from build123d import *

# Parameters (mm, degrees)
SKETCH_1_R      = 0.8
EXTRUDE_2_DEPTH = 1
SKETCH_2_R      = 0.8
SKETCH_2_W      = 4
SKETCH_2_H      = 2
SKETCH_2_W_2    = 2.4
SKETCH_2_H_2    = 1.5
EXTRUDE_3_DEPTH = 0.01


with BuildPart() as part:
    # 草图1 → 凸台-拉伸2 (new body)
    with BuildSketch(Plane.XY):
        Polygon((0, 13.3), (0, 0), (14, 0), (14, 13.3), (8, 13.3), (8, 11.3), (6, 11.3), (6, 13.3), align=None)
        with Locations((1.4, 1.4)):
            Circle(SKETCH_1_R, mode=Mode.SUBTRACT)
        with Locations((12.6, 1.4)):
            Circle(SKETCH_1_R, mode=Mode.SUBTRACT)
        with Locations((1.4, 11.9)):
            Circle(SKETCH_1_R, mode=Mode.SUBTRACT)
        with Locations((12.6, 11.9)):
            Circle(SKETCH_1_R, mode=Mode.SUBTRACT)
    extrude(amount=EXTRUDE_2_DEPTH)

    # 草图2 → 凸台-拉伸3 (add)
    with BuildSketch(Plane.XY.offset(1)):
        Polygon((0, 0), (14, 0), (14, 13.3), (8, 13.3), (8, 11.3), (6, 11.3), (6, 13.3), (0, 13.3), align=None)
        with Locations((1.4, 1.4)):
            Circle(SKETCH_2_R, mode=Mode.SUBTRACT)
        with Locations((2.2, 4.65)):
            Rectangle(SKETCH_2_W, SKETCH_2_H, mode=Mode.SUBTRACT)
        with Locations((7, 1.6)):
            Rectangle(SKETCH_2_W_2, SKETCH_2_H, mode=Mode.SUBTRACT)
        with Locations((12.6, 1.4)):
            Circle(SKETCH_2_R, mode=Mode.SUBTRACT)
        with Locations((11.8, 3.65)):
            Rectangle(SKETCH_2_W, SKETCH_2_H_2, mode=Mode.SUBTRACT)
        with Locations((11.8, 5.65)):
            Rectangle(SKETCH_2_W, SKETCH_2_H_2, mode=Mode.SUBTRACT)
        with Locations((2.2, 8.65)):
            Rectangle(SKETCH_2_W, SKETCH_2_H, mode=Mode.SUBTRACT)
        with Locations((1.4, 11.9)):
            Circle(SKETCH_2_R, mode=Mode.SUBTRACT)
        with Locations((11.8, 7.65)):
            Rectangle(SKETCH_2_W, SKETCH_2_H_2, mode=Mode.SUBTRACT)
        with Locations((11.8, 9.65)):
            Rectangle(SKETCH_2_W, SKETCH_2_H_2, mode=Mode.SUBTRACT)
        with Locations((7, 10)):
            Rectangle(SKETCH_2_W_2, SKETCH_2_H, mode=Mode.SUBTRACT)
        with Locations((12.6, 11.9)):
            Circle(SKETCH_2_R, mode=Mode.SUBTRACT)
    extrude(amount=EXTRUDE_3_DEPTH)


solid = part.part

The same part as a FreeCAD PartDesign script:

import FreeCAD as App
import Part
import Sketcher

V = App.Vector

doc = App.newDocument("Part")
body = doc.addObject("PartDesign::Body", "Body")

# Sketch on XY plane
sketch1 = body.newObject("Sketcher::SketchObject", "Sketch")
sketch1.AttachmentSupport = (doc.getObject("XY_Plane"), [""])
sketch1.MapMode = "FlatFace"
sketch1.addGeometry([
    Part.LineSegment(V(0, 13.3, 0), V(0, 0, 0)),  # 0
    Part.LineSegment(V(0, 0, 0), V(14, 0, 0)),  # 1
    Part.LineSegment(V(14, 0, 0), V(14, 13.3, 0)),  # 2
    Part.LineSegment(V(14, 13.3, 0), V(8, 13.3, 0)),  # 3
    Part.LineSegment(V(8, 13.3, 0), V(8, 11.3, 0)),  # 4
    Part.LineSegment(V(8, 11.3, 0), V(6, 11.3, 0)),  # 5
    Part.LineSegment(V(6, 11.3, 0), V(6, 13.3, 0)),  # 6
    Part.LineSegment(V(6, 13.3, 0), V(0, 13.3, 0)),  # 7
    Part.Circle(V(1.4, 1.4, 0), V(0, 0, 1), 0.8),  # 8
    Part.Circle(V(12.6, 1.4, 0), V(0, 0, 1), 0.8),  # 9
    Part.Circle(V(1.4, 11.9, 0), V(0, 0, 1), 0.8),  # 10
    Part.Circle(V(12.6, 11.9, 0), V(0, 0, 1), 0.8),  # 11
], False)
sketch1.addConstraint([
    Sketcher.Constraint("Coincident", 0, 2, 1, 1),
    Sketcher.Constraint("Coincident", 1, 2, 2, 1),
    Sketcher.Constraint("Coincident", 2, 2, 3, 1),
    Sketcher.Constraint("Coincident", 3, 2, 4, 1),
    Sketcher.Constraint("Coincident", 4, 2, 5, 1),
    Sketcher.Constraint("Coincident", 5, 2, 6, 1),
    Sketcher.Constraint("Coincident", 6, 2, 7, 1),
    Sketcher.Constraint("Coincident", 7, 2, 0, 1),
    Sketcher.Constraint("Vertical", 0),
    Sketcher.Constraint("Horizontal", 1),
    Sketcher.Constraint("Vertical", 2),
    Sketcher.Constraint("Horizontal", 3),
    Sketcher.Constraint("Vertical", 4),
    Sketcher.Constraint("Horizontal", 5),
    Sketcher.Constraint("Vertical", 6),
    Sketcher.Constraint("Horizontal", 7),
    Sketcher.Constraint("Coincident", 0, 2, -1, 1),
    Sketcher.Constraint("Equal", 8, 9),
    Sketcher.Constraint("Equal", 9, 10),
    Sketcher.Constraint("Equal", 10, 11),
    Sketcher.Constraint("Horizontal", 8, 3, 9, 3),
    Sketcher.Constraint("Horizontal", 10, 3, 11, 3),
    Sketcher.Constraint("Horizontal", 3, 2, 6, 2),
    Sketcher.Constraint("Vertical", 8, 3, 10, 3),
    Sketcher.Constraint("Vertical", 9, 3, 11, 3),
    Sketcher.Constraint("Equal", 3, 7),
    Sketcher.Constraint("Equal", 5, 4),
    Sketcher.Constraint("Diameter", 8, 1.6),
    Sketcher.Constraint("DistanceX", 1, 1, 1, 2, 14.0),
    Sketcher.Constraint("DistanceX", 3, 2, 3, 1, 6.0),
    Sketcher.Constraint("DistanceY", 0, 2, 0, 1, 13.3),
    Sketcher.Constraint("DistanceX", -1, 1, 8, 3, 1.4),
    Sketcher.Constraint("DistanceY", -1, 1, 8, 3, 1.4),
    Sketcher.Constraint("DistanceX", -1, 1, 9, 3, 12.6),
    Sketcher.Constraint("DistanceY", -1, 1, 10, 3, 11.9),
])
pad1 = body.newObject("PartDesign::Pad", "Pad")
pad1.Profile = sketch1
pad1.Length = 1

# Sketch on XY plane
sketch2 = body.newObject("Sketcher::SketchObject", "Sketch001")
sketch2.AttachmentSupport = (doc.getObject("XY_Plane"), [""])
sketch2.MapMode = "FlatFace"
sketch2.AttachmentOffset = App.Placement(V(0, 0, 1), App.Rotation())
sketch2.addGeometry([
    Part.LineSegment(V(0, 0, 0), V(14, 0, 0)),  # 0
    Part.LineSegment(V(14, 0, 0), V(14, 13.3, 0)),  # 1
    Part.LineSegment(V(14, 13.3, 0), V(8, 13.3, 0)),  # 2
    Part.LineSegment(V(8, 13.3, 0), V(8, 11.3, 0)),  # 3
    Part.LineSegment(V(8, 11.3, 0), V(6, 11.3, 0)),  # 4
    Part.LineSegment(V(6, 11.3, 0), V(6, 13.3, 0)),  # 5
    Part.LineSegment(V(6, 13.3, 0), V(0, 13.3, 0)),  # 6
    Part.LineSegment(V(0, 13.3, 0), V(0, 0, 0)),  # 7
    Part.Circle(V(1.4, 1.4, 0), V(0, 0, 1), 0.8),  # 8
    Part.LineSegment(V(8.2, 0.6, 0), V(5.8, 0.6, 0)),  # 9
    Part.LineSegment(V(5.8, 0.6, 0), V(5.8, 2.6, 0)),  # 10
    Part.LineSegment(V(5.8, 2.6, 0), V(8.2, 2.6, 0)),  # 11
    Part.LineSegment(V(8.2, 2.6, 0), V(8.2, 0.6, 0)),  # 12
    Part.LineSegment(V(4.2, 3.6, 0), V(0.2, 3.6, 0)),  # 13
    Part.LineSegment(V(0.2, 3.6, 0), V(0.2, 5.7, 0)),  # 14
    Part.LineSegment(V(0.2, 5.7, 0), V(4.2, 5.7, 0)),  # 15
    Part.LineSegment(V(4.2, 5.7, 0), V(4.2, 3.6, 0)),  # 16
    Part.Circle(V(12.6, 1.4, 0), V(0, 0, 1), 0.8),  # 17
    Part.LineSegment(V(13.8, 2.9, 0), V(9.8, 2.9, 0)),  # 18
    Part.LineSegment(V(9.8, 2.9, 0), V(9.8, 4.4, 0)),  # 19
    Part.LineSegment(V(9.8, 4.4, 0), V(13.8, 4.4, 0)),  # 20
    Part.LineSegment(V(13.8, 4.4, 0), V(13.8, 2.9, 0)),  # 21
    Part.LineSegment(V(13.8, 4.9, 0), V(9.8, 4.9, 0)),  # 22
    Part.LineSegment(V(9.8, 4.9, 0), V(9.8, 6.4, 0)),  # 23
    Part.LineSegment(V(9.8, 6.4, 0), V(13.8, 6.4, 0)),  # 24
    Part.LineSegment(V(13.8, 6.4, 0), V(13.8, 4.9, 0)),  # 25
    Part.LineSegment(V(4.2, 7.7, 0), V(0.2, 7.7, 0)),  # 26
    Part.LineSegment(V(0.2, 7.7, 0), V(0.2, 9.7, 0)),  # 27
    Part.LineSegment(V(0.2, 9.7, 0), V(4.2, 9.7, 0)),  # 28
    Part.LineSegment(V(4.2, 9.7, 0), V(4.2, 7.7, 0)),  # 29
    Part.Circle(V(1.4, 11.9, 0), V(0, 0, 1), 0.8),  # 30
    Part.LineSegment(V(8.2, 9, 0), V(5.8, 9, 0)),  # 31
    Part.LineSegment(V(5.8, 9, 0), V(5.8, 11, 0)),  # 32
    Part.LineSegment(V(5.8, 11, 0), V(8.2, 11, 0)),  # 33
    Part.LineSegment(V(8.2, 11, 0), V(8.2, 9, 0)),  # 34
    Part.LineSegment(V(13.8, 6.9, 0), V(9.8, 6.9, 0)),  # 35
    Part.LineSegment(V(9.8, 6.9, 0), V(9.8, 8.4, 0)),  # 36
    Part.LineSegment(V(9.8, 8.4, 0), V(13.8, 8.4, 0)),  # 37
    Part.LineSegment(V(13.8, 8.4, 0), V(13.8, 6.9, 0)),  # 38
    Part.LineSegment(V(13.8, 8.9, 0), V(9.8, 8.9, 0)),  # 39
    Part.LineSegment(V(9.8, 8.9, 0), V(9.8, 10.4, 0)),  # 40
    Part.LineSegment(V(9.8, 10.4, 0), V(13.8, 10.4, 0)),  # 41
    Part.LineSegment(V(13.8, 10.4, 0), V(13.8, 8.9, 0)),  # 42
    Part.Circle(V(12.6, 11.9, 0), V(0, 0, 1), 0.8),  # 43
], False)
sketch2.addConstraint([
    Sketcher.Constraint("Coincident", 0, 2, 1, 1),
    Sketcher.Constraint("Coincident", 1, 2, 2, 1),
    Sketcher.Constraint("Coincident", 2, 2, 3, 1),
    Sketcher.Constraint("Coincident", 3, 2, 4, 1),
    Sketcher.Constraint("Coincident", 4, 2, 5, 1),
    Sketcher.Constraint("Coincident", 5, 2, 6, 1),
    Sketcher.Constraint("Coincident", 6, 2, 7, 1),
    Sketcher.Constraint("Coincident", 7, 2, 0, 1),
    Sketcher.Constraint("Coincident", 9, 2, 10, 1),
    Sketcher.Constraint("Coincident", 10, 2, 11, 1),
    Sketcher.Constraint("Coincident", 11, 2, 12, 1),
    Sketcher.Constraint("Coincident", 12, 2, 9, 1),
    Sketcher.Constraint("Coincident", 13, 2, 14, 1),
    Sketcher.Constraint("Coincident", 14, 2, 15, 1),
    Sketcher.Constraint("Coincident", 15, 2, 16, 1),
    Sketcher.Constraint("Coincident", 16, 2, 13, 1),
    Sketcher.Constraint("Coincident", 18, 2, 19, 1),
    Sketcher.Constraint("Coincident", 19, 2, 20, 1),
    Sketcher.Constraint("Coincident", 20, 2, 21, 1),
    Sketcher.Constraint("Coincident", 21, 2, 18, 1),
    Sketcher.Constraint("Coincident", 22, 2, 23, 1),
    Sketcher.Constraint("Coincident", 23, 2, 24, 1),
    Sketcher.Constraint("Coincident", 24, 2, 25, 1),
    Sketcher.Constraint("Coincident", 25, 2, 22, 1),
    Sketcher.Constraint("Coincident", 26, 2, 27, 1),
    Sketcher.Constraint("Coincident", 27, 2, 28, 1),
    Sketcher.Constraint("Coincident", 28, 2, 29, 1),
    Sketcher.Constraint("Coincident", 29, 2, 26, 1),
    Sketcher.Constraint("Coincident", 31, 2, 32, 1),
    Sketcher.Constraint("Coincident", 32, 2, 33, 1),
    Sketcher.Constraint("Coincident", 33, 2, 34, 1),
    Sketcher.Constraint("Coincident", 34, 2, 31, 1),
    Sketcher.Constraint("Coincident", 35, 2, 36, 1),
    Sketcher.Constraint("Coincident", 36, 2, 37, 1),
    Sketcher.Constraint("Coincident", 37, 2, 38, 1),
    Sketcher.Constraint("Coincident", 38, 2, 35, 1),
    Sketcher.Constraint("Coincident", 39, 2, 40, 1),
    Sketcher.Constraint("Coincident", 40, 2, 41, 1),
    Sketcher.Constraint("Coincident", 41, 2, 42, 1),
    Sketcher.Constraint("Coincident", 42, 2, 39, 1),
    Sketcher.Constraint("Horizontal", 0),
    Sketcher.Constraint("Vertical", 1),
    Sketcher.Constraint("Horizontal", 2),
    Sketcher.Constraint("Vertical", 3),
    Sketcher.Constraint("Horizontal", 4),
    Sketcher.Constraint("Vertical", 5),
    Sketcher.Constraint("Horizontal", 6),
    Sketcher.Constraint("Vertical", 7),
    Sketcher.Constraint("Horizontal", 9),
    Sketcher.Constraint("Vertical", 10),
    Sketcher.Constraint("Horizontal", 11),
    Sketcher.Constraint("Vertical", 12),
    Sketcher.Constraint("Horizontal", 13),
    Sketcher.Constraint("Vertical", 14),
    Sketcher.Constraint("Horizontal", 15),
    Sketcher.Constraint("Vertical", 16),
    Sketcher.Constraint("Horizontal", 18),
    Sketcher.Constraint("Vertical", 19),
    Sketcher.Constraint("Horizontal", 20),
    Sketcher.Constraint("Vertical", 21),
    Sketcher.Constraint("Horizontal", 22),
    Sketcher.Constraint("Vertical", 23),
    Sketcher.Constraint("Horizontal", 24),
    Sketcher.Constraint("Vertical", 25),
    Sketcher.Constraint("Horizontal", 26),
    Sketcher.Constraint("Vertical", 27),
    Sketcher.Constraint("Horizontal", 28),
    Sketcher.Constraint("Vertical", 29),
    Sketcher.Constraint("Horizontal", 31),
    Sketcher.Constraint("Vertical", 32),
    Sketcher.Constraint("Horizontal", 33),
    Sketcher.Constraint("Vertical", 34),
    Sketcher.Constraint("Horizontal", 35),
    Sketcher.Constraint("Vertical", 36),
    Sketcher.Constraint("Horizontal", 37),
    Sketcher.Constraint("Vertical", 38),
    Sketcher.Constraint("Horizontal", 39),
    Sketcher.Constraint("Vertical", 40),
    Sketcher.Constraint("Horizontal", 41),
    Sketcher.Constraint("Vertical", 42),
    Sketcher.Constraint("Coincident", 7, 2, -1, 1),
    Sketcher.Constraint("Equal", 8, 17),
    Sketcher.Constraint("Equal", 17, 30),
    Sketcher.Constraint("Equal", 30, 43),
    Sketcher.Constraint("Horizontal", 8, 3, 17, 3),
    Sketcher.Constraint("Horizontal", 30, 3, 43, 3),
    Sketcher.Constraint("Horizontal", 2, 2, 5, 2),
    Sketcher.Constraint("Vertical", 8, 3, 30, 3),
    Sketcher.Constraint("Vertical", 17, 3, 43, 3),
    Sketcher.Constraint("Vertical", 19, 2, 22, 2),
    Sketcher.Constraint("Vertical", 21, 2, 24, 2),
    Sketcher.Constraint("Vertical", 14, 2, 26, 2),
    Sketcher.Constraint("Vertical", 16, 2, 28, 2),
    Sketcher.Constraint("Vertical", 10, 2, 31, 2),
    Sketcher.Constraint("Vertical", 12, 2, 33, 2),
    Sketcher.Constraint("Vertical", 23, 2, 35, 2),
    Sketcher.Constraint("Vertical", 25, 2, 37, 2),
    Sketcher.Constraint("Vertical", 36, 2, 39, 2),
    Sketcher.Constraint("Vertical", 38, 2, 41, 2),
    Sketcher.Constraint("Equal", 2, 6),
    Sketcher.Constraint("Equal", 15, 18),
    Sketcher.Constraint("Equal", 4, 3),
    Sketcher.Constraint("Equal", 5, 10),
    Sketcher.Constraint("Equal", 12, 14),
    Sketcher.Constraint("Equal", 21, 23),
    Sketcher.Constraint("Equal", 16, 27),
    Sketcher.Constraint("Equal", 29, 32),
    Sketcher.Constraint("Equal", 25, 36),
    Sketcher.Constraint("Equal", 38, 40),
    Sketcher.Constraint("Diameter", 8, 1.6),
    Sketcher.Constraint("DistanceX", 0, 1, 0, 2, 14.0),
    Sketcher.Constraint("DistanceX", 2, 2, 2, 1, 6.0),
    Sketcher.Constraint("DistanceX", 13, 2, 13, 1, 4.0),
    Sketcher.Constraint("DistanceX", 9, 2, 9, 1, 2.4),
    Sketcher.Constraint("DistanceY", 1, 1, 1, 2, 13.3),
    Sketcher.Constraint("DistanceY", 19, 1, 19, 2, 1.5),
    Sketcher.Constraint("DistanceY", -1, 1, 31, 2, 9.0),
    Sketcher.Constraint("DistanceX", 13, 2, 11, 2, 8.0),
    Sketcher.Constraint("DistanceX", 10, 2, 18, 2, 4.0),
    Sketcher.Constraint("DistanceY", 17, 3, 19, 2, 3.0),
    Sketcher.Constraint("DistanceY", 18, 2, 22, 2, 2.0),
    Sketcher.Constraint("DistanceY", 14, 2, 26, 2, 2.0),
    Sketcher.Constraint("DistanceY", 22, 2, 35, 2, 2.0),
    Sketcher.Constraint("DistanceY", 35, 2, 39, 2, 2.0),
    Sketcher.Constraint("DistanceY", 42, 2, 43, 3, 3.0),
    Sketcher.Constraint("DistanceX", -1, 1, 8, 3, 1.4),
    Sketcher.Constraint("DistanceY", -1, 1, 8, 3, 1.4),
    Sketcher.Constraint("DistanceX", -1, 1, 17, 3, 12.6),
    Sketcher.Constraint("DistanceX", -1, 1, 9, 2, 5.8),
    Sketcher.Constraint("DistanceY", -1, 1, 9, 2, 0.6),
    Sketcher.Constraint("DistanceY", -1, 1, 13, 2, 3.65),
])
pad2 = body.newObject("PartDesign::Pad", "Pad001")
pad2.Profile = sketch2
pad2.Length = 0.01

doc.recompute()
